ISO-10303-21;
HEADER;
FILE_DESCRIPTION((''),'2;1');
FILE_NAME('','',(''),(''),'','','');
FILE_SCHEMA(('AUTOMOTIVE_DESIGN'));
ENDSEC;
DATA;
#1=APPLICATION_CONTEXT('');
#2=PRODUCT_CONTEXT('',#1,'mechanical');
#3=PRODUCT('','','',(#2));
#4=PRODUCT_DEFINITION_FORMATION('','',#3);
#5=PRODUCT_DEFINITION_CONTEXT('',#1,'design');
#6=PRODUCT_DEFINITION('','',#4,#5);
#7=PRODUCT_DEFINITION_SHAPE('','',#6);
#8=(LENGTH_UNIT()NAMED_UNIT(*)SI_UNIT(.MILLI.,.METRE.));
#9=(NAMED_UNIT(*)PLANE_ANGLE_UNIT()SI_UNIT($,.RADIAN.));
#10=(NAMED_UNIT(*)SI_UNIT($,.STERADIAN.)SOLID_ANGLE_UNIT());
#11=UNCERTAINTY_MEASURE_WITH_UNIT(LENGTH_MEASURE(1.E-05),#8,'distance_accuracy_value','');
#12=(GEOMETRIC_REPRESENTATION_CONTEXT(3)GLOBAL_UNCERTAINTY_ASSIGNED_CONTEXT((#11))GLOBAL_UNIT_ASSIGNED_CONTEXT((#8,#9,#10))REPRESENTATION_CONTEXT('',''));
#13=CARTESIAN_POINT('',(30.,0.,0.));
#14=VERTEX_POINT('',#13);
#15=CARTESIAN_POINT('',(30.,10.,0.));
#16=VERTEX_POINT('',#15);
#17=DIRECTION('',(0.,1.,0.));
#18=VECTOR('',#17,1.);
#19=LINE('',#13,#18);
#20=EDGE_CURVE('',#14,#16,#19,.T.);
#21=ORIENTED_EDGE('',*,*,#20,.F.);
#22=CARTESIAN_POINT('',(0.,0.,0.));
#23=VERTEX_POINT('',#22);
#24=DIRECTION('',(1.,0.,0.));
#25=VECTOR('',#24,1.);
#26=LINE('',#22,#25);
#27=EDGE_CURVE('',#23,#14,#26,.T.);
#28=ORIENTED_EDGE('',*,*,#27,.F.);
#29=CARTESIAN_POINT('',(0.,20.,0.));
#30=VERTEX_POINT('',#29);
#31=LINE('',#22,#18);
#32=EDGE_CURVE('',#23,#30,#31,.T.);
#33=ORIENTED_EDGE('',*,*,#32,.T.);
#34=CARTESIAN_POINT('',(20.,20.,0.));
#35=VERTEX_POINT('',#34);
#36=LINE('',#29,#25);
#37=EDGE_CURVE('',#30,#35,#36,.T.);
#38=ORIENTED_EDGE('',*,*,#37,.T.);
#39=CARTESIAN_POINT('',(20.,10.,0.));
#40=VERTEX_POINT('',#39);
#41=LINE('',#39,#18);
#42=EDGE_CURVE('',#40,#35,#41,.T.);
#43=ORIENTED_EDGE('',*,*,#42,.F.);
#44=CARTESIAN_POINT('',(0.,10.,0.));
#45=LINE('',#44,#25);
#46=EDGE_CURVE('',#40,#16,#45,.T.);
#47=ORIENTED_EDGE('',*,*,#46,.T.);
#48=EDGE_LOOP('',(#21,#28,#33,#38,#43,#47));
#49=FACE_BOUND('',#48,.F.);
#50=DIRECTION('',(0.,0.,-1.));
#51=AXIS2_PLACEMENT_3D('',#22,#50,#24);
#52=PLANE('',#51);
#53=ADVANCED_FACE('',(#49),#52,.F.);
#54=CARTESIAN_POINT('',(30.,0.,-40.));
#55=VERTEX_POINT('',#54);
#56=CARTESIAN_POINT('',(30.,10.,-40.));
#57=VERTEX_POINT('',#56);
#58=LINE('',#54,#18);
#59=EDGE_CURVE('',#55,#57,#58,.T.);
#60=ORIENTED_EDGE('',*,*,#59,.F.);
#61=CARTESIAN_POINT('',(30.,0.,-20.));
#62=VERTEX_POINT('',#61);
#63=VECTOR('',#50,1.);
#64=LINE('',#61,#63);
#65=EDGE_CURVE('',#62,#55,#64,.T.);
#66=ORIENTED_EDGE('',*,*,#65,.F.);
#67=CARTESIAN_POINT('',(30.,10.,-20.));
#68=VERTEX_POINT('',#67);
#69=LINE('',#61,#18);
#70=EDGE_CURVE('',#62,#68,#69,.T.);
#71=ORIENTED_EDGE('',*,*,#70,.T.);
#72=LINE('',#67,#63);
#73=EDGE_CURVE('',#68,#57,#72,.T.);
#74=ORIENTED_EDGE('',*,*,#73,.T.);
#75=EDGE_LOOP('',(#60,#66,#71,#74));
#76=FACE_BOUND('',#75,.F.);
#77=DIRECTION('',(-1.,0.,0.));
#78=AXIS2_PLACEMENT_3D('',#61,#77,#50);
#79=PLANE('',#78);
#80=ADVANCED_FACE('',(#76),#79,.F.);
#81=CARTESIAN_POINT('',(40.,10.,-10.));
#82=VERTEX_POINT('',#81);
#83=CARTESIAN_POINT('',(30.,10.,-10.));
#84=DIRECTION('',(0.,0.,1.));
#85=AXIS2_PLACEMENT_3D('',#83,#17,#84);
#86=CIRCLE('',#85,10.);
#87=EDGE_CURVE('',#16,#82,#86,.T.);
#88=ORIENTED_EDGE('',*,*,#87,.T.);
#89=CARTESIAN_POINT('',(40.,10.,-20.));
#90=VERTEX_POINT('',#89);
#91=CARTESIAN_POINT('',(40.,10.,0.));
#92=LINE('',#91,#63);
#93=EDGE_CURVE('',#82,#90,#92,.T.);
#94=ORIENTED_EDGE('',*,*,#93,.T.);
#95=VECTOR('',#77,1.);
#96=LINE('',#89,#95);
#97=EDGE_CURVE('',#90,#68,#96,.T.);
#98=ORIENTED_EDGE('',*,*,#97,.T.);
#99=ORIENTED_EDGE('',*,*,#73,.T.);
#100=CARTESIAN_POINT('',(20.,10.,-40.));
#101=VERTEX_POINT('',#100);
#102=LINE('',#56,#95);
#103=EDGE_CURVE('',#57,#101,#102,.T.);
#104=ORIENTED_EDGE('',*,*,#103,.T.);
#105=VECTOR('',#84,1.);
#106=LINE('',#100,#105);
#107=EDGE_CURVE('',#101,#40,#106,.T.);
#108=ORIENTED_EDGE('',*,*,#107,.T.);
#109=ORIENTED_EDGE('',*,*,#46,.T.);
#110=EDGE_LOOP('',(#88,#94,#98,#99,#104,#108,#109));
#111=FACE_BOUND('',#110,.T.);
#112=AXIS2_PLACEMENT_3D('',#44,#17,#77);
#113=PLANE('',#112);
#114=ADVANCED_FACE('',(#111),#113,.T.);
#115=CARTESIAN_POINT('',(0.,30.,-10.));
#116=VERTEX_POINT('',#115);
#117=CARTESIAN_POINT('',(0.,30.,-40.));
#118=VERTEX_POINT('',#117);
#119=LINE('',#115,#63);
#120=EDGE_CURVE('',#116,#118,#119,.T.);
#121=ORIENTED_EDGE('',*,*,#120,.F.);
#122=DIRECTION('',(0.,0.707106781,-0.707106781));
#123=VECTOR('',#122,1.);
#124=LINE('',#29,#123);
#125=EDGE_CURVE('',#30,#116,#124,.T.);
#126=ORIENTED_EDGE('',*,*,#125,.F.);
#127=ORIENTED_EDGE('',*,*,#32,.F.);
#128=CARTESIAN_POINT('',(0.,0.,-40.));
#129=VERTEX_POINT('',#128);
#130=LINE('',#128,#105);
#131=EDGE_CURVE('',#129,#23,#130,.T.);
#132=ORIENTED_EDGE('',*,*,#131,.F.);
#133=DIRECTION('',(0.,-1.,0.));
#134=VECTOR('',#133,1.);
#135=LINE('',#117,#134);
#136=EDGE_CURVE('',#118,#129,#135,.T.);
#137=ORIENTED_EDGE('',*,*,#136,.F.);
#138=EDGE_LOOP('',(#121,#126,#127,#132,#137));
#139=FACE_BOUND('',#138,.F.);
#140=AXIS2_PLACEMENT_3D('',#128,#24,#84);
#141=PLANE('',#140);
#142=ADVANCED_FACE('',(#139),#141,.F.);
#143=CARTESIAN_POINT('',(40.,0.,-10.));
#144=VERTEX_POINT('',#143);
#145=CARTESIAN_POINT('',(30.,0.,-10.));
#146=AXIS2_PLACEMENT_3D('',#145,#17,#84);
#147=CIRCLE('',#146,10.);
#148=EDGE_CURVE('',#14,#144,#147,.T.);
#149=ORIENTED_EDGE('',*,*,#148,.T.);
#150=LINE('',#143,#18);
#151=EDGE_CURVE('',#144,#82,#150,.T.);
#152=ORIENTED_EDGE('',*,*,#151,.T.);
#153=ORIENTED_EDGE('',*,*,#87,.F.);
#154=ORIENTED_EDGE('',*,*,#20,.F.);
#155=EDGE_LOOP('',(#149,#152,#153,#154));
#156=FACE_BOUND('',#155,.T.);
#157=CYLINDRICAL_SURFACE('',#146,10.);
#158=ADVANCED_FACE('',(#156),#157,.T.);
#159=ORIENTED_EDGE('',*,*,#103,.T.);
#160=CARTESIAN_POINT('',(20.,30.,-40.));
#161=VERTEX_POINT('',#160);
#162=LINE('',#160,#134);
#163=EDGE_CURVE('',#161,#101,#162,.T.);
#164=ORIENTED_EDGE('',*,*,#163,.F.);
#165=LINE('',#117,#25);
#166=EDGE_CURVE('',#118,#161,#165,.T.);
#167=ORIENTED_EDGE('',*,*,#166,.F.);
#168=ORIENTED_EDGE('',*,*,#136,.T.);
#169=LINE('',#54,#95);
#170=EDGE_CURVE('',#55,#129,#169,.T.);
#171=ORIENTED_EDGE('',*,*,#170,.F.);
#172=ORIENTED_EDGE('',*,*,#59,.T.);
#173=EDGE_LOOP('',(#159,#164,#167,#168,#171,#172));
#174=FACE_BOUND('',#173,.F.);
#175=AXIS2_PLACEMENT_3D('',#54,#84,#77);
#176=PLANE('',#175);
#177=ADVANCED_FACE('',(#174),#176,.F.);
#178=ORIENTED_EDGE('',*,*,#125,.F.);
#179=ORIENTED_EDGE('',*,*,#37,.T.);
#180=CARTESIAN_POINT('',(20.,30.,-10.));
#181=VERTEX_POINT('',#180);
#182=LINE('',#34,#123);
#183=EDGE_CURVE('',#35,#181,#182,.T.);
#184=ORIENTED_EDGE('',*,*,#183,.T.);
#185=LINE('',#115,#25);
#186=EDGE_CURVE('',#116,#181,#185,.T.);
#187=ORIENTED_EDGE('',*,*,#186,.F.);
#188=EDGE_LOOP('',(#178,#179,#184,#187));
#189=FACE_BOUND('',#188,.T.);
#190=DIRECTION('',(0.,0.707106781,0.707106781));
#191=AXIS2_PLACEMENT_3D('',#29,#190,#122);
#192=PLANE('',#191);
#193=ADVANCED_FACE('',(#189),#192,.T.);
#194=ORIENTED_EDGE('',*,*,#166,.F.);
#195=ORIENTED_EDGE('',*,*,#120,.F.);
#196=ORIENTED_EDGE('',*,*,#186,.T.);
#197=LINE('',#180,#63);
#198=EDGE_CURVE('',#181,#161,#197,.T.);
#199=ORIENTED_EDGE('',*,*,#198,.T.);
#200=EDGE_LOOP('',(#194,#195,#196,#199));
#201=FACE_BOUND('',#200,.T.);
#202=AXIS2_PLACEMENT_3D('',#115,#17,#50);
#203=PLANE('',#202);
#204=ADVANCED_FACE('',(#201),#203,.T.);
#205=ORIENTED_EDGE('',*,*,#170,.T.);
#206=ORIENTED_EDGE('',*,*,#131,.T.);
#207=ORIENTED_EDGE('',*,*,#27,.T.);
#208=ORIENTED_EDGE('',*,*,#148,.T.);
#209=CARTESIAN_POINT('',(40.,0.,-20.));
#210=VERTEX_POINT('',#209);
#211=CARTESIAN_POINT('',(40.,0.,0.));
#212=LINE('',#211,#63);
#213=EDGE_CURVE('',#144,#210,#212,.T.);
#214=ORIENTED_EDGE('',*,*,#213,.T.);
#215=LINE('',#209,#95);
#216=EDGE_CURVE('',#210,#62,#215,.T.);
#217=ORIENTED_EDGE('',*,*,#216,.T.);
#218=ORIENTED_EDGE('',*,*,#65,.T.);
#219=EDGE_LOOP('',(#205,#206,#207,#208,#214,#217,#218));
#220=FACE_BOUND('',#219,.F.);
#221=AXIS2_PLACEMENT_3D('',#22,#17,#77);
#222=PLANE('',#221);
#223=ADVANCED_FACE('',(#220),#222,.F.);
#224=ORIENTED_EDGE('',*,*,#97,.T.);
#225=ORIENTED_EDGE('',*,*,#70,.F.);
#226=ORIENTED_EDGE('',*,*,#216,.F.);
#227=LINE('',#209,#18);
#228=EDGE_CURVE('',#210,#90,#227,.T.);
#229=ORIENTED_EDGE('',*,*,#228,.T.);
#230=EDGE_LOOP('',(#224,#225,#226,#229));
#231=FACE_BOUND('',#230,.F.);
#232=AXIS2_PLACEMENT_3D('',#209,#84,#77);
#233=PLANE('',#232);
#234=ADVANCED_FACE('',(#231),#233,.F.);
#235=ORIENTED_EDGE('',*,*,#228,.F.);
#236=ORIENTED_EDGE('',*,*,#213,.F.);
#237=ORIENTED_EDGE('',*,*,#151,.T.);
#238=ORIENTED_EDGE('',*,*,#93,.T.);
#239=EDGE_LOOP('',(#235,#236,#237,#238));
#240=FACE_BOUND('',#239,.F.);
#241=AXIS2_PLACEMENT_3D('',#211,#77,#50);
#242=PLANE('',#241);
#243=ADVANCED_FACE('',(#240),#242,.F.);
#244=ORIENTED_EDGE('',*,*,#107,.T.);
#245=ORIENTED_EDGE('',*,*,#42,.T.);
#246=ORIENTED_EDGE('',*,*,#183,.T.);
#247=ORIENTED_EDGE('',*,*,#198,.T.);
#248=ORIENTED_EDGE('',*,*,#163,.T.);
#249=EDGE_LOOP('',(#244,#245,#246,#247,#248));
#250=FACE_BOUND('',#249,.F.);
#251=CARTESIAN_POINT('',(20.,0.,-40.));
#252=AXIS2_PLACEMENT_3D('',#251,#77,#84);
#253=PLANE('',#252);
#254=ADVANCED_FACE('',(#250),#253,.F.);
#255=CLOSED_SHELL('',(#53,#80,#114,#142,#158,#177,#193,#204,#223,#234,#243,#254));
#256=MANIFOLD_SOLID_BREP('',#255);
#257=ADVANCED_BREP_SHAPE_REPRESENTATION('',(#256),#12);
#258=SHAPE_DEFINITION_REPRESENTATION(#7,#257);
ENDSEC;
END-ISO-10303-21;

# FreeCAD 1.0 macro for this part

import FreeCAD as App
import Part
import Sketcher
from FreeCAD import Vector
Q = App.Units.Quantity


def edges_at(feature, points):
    """Names of the edges that pass closest to the given points."""
    edges = feature.Shape.Edges
    near = lambda p: min(range(len(edges)), key=lambda i: edges[i].distToShape(Part.Vertex(*p))[0])
    return sorted({f"Edge{near(p) + 1}" for p in points})

doc = App.newDocument("Part")
body = doc.addObject("PartDesign::Body", "Body")

sketch1 = body.newObject("Sketcher::SketchObject", "Sketch")
sketch1.AttachmentSupport = (doc.getObject("XZ_Plane"), [""])
sketch1.MapMode = "FlatFace"
sketch1.addGeometry([
    Part.LineSegment(Vector(0, -40, 0), Vector(0, 0, 0)),
    Part.LineSegment(Vector(0, 0, 0), Vector(40, 0, 0)),
    Part.LineSegment(Vector(40, 0, 0), Vector(40, -20, 0)),
    Part.LineSegment(Vector(40, -20, 0), Vector(30, -20, 0)),
    Part.LineSegment(Vector(30, -20, 0), Vector(30, -40, 0)),
    Part.LineSegment(Vector(30, -40, 0), Vector(0, -40, 0)),
], False)
sketch1.addConstraint([
    Sketcher.Constraint("Coincident", 0, 2, 1, 1),
    Sketcher.Constraint("Coincident", 1, 2, 2, 1),
    Sketcher.Constraint("Coincident", 2, 2, 3, 1),
    Sketcher.Constraint("Coincident", 3, 2, 4, 1),
    Sketcher.Constraint("Coincident", 4, 2, 5, 1),
    Sketcher.Constraint("Coincident", 5, 2, 0, 1),
    Sketcher.Constraint("Vertical", 0),
    Sketcher.Constraint("Horizontal", 1),
    Sketcher.Constraint("Vertical", 2),
    Sketcher.Constraint("Horizontal", 3),
    Sketcher.Constraint("Vertical", 4),
    Sketcher.Constraint("Horizontal", 5),
    Sketcher.Constraint("Coincident", 0, 2, -1, 1),
    Sketcher.Constraint("Equal", 1, 0),
    Sketcher.Constraint("Equal", 2, 4),
    Sketcher.Constraint("DistanceX", 1, 1, 1, 2, Q("40 mm")),
    Sketcher.Constraint("DistanceX", 3, 2, 3, 1, Q("10 mm")),
])
pad1 = body.newObject("PartDesign::Pad", "Pad")
pad1.Profile = sketch1
pad1.Length = 10
pad1.Reversed = True

sketch2 = body.newObject("Sketcher::SketchObject", "Sketch001")
sketch2.AttachmentSupport = (doc.getObject("YZ_Plane"), [""])
sketch2.MapMode = "FlatFace"
sketch2.addGeometry([
    Part.LineSegment(Vector(10, -40, 0), Vector(10, 0, 0)),
    Part.LineSegment(Vector(10, 0, 0), Vector(20, 0, 0)),
    Part.LineSegment(Vector(20, 0, 0), Vector(30, -10, 0)),
    Part.LineSegment(Vector(30, -10, 0), Vector(30, -40, 0)),
    Part.LineSegment(Vector(30, -40, 0), Vector(10, -40, 0)),
], False)
sketch2.addConstraint([
    Sketcher.Constraint("Coincident", 0, 2, 1, 1),
    Sketcher.Constraint("Coincident", 1, 2, 2, 1),
    Sketcher.Constraint("Coincident", 2, 2, 3, 1),
    Sketcher.Constraint("Coincident", 3, 2, 4, 1),
    Sketcher.Constraint("Coincident", 4, 2, 0, 1),
    Sketcher.Constraint("Vertical", 0),
    Sketcher.Constraint("Horizontal", 1),
    Sketcher.Constraint("Vertical", 3),
    Sketcher.Constraint("Horizontal", 4),
    Sketcher.Constraint("PointOnObject", 0, 2, -1),
    Sketcher.Constraint("DistanceX", 1, 1, 1, 2, Q("10 mm")),
    Sketcher.Constraint("DistanceY", 3, 2, 3, 1, Q("30 mm")),
    Sketcher.Constraint("DistanceX", -1, 1, 0, 2, Q("10 mm")),
    Sketcher.Constraint("DistanceX", -1, 1, 2, 2, Q("30 mm")),
    Sketcher.Constraint("DistanceY", 2, 2, -1, 1, Q("10 mm")),
])
pad2 = body.newObject("PartDesign::Pad", "Pad001")
pad2.Profile = sketch2
pad2.Length = 20
doc.recompute()

fillet = body.newObject("PartDesign::Fillet", "Fillet")
fillet.Base = (pad2, edges_at(pad2, [(40, 5, 0)]))
fillet.Radius = 10

doc.recompute()
